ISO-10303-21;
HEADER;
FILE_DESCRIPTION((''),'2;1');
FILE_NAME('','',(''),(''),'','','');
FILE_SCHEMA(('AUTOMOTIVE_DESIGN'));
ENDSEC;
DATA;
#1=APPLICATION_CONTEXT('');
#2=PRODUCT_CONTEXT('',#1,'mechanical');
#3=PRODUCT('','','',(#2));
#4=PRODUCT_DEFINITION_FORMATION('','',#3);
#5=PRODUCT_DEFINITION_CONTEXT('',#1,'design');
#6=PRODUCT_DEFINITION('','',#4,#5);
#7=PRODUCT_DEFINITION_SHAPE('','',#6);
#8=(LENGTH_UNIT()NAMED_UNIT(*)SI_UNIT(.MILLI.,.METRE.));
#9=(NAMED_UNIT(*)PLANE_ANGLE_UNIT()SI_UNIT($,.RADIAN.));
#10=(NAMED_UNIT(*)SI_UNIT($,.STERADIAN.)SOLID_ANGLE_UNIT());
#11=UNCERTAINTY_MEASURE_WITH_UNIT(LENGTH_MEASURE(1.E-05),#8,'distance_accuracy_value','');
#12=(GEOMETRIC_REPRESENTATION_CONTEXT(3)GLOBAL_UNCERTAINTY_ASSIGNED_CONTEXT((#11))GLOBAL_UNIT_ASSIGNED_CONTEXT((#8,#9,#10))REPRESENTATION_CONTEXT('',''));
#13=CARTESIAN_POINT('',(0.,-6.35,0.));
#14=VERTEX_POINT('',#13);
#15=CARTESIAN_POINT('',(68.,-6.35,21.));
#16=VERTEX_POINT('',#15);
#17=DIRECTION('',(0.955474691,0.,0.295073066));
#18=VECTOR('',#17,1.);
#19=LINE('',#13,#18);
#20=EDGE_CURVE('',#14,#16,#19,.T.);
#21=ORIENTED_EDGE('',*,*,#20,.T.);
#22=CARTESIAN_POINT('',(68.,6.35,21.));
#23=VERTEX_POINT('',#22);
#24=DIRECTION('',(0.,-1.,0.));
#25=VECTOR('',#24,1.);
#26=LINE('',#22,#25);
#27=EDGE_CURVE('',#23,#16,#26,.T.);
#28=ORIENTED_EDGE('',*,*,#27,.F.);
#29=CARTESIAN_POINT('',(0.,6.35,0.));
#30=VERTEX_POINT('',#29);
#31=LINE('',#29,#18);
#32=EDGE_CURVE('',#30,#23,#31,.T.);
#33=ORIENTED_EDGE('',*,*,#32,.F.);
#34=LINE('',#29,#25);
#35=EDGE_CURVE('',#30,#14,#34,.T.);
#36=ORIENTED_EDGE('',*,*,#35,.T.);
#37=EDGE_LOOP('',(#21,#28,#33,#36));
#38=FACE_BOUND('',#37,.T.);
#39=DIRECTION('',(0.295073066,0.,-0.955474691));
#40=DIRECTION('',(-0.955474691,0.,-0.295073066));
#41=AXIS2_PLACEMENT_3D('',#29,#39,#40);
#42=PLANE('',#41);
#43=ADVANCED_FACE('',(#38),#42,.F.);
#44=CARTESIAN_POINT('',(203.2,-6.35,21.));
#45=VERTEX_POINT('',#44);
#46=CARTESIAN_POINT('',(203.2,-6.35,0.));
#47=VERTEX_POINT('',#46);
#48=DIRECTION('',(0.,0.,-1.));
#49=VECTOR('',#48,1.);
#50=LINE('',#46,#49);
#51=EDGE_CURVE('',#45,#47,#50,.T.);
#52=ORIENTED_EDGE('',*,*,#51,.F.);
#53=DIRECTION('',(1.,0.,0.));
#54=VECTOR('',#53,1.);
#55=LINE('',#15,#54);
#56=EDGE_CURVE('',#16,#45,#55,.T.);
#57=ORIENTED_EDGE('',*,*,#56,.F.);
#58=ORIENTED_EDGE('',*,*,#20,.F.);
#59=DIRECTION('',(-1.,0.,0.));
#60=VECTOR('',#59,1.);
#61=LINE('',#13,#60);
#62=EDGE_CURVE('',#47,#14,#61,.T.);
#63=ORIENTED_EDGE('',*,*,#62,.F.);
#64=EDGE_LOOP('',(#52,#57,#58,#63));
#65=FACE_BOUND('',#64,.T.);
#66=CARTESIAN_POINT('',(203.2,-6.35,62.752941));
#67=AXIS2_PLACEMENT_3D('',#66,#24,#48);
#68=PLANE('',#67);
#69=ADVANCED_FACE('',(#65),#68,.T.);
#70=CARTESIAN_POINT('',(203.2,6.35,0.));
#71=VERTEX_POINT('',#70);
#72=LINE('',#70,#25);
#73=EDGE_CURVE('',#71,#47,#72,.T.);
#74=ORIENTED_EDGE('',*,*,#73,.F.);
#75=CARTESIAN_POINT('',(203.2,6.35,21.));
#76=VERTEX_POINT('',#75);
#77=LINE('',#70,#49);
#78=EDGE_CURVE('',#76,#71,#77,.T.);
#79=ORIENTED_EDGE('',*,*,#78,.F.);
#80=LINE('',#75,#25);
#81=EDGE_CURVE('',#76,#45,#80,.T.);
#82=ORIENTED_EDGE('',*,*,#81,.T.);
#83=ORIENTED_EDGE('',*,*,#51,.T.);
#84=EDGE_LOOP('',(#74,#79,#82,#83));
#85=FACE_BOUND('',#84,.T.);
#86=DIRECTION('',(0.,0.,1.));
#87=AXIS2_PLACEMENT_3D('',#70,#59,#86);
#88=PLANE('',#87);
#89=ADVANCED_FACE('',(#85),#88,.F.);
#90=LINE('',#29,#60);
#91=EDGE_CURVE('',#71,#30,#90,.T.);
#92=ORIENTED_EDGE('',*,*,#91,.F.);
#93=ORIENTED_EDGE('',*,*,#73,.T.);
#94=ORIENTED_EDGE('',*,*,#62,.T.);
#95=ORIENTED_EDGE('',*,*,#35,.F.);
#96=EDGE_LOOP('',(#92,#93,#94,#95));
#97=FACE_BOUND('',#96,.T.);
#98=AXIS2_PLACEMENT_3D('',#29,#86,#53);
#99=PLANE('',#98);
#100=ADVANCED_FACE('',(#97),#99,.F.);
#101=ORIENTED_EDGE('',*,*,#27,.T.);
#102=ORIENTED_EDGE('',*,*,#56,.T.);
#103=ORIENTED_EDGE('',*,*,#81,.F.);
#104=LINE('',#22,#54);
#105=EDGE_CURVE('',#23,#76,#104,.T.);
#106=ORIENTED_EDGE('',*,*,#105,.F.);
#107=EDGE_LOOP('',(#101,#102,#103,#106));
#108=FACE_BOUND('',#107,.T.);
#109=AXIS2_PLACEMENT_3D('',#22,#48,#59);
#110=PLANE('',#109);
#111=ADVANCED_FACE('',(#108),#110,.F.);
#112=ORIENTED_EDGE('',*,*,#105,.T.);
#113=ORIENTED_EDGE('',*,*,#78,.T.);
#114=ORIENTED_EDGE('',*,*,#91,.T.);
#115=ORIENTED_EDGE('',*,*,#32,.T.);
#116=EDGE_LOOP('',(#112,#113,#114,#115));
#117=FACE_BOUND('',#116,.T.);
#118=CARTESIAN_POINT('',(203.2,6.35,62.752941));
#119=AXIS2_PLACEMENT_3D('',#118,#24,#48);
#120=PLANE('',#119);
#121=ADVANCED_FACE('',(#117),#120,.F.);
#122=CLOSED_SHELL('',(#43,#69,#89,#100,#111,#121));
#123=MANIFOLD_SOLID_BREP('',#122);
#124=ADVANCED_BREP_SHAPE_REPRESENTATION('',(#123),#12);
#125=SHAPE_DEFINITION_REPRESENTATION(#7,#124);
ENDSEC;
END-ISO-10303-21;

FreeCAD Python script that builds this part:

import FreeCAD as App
import Part
import Sketcher

V = App.Vector

doc = App.newDocument("Part")
body = doc.addObject("PartDesign::Body", "Body")

# Sketch on XZ plane
sketch1 = body.newObject("Sketcher::SketchObject", "Sketch")
sketch1.AttachmentSupport = (doc.getObject("XZ_Plane"), [""])
sketch1.MapMode = "FlatFace"
sketch1.addGeometry(Part.LineSegment(V(203.2, 0, 0), V(0, 0, 0)), False)
sketch1.addGeometry(Part.LineSegment(V(0, 0, 0), V(68, 21, 0)), False)
sketch1.addGeometry(Part.LineSegment(V(68, 21, 0), V(203.2, 21, 0)), False)
sketch1.addGeometry(Part.LineSegment(V(203.2, 21, 0), V(203.2, 0, 0)), False)
sketch1.addConstraint(Sketcher.Constraint("Coincident", 0, 2, 1, 1))
sketch1.addConstraint(Sketcher.Constraint("Coincident", 1, 2, 2, 1))
sketch1.addConstraint(Sketcher.Constraint("Coincident", 2, 2, 3, 1))
sketch1.addConstraint(Sketcher.Constraint("Coincident", 3, 2, 0, 1))
sketch1.addConstraint(Sketcher.Constraint("Horizontal", 0))
sketch1.addConstraint(Sketcher.Constraint("Horizontal", 2))
sketch1.addConstraint(Sketcher.Constraint("Vertical", 3))
sketch1.addConstraint(Sketcher.Constraint("Coincident", 0, 2, -1, 1))
sketch1.addConstraint(Sketcher.Constraint("DistanceY", 3, 2, 3, 1, 21.0))
sketch1.addConstraint(Sketcher.Constraint("DistanceX", 0, 2, 0, 1, 203.2))
sketch1.addConstraint(Sketcher.Constraint("DistanceX", 2, 1, 2, 2, 135.2))
pad1 = body.newObject("PartDesign::Pad", "Pad")
pad1.Profile = sketch1
pad1.Length = 12.7
pad1.Midplane = True

doc.recompute()
